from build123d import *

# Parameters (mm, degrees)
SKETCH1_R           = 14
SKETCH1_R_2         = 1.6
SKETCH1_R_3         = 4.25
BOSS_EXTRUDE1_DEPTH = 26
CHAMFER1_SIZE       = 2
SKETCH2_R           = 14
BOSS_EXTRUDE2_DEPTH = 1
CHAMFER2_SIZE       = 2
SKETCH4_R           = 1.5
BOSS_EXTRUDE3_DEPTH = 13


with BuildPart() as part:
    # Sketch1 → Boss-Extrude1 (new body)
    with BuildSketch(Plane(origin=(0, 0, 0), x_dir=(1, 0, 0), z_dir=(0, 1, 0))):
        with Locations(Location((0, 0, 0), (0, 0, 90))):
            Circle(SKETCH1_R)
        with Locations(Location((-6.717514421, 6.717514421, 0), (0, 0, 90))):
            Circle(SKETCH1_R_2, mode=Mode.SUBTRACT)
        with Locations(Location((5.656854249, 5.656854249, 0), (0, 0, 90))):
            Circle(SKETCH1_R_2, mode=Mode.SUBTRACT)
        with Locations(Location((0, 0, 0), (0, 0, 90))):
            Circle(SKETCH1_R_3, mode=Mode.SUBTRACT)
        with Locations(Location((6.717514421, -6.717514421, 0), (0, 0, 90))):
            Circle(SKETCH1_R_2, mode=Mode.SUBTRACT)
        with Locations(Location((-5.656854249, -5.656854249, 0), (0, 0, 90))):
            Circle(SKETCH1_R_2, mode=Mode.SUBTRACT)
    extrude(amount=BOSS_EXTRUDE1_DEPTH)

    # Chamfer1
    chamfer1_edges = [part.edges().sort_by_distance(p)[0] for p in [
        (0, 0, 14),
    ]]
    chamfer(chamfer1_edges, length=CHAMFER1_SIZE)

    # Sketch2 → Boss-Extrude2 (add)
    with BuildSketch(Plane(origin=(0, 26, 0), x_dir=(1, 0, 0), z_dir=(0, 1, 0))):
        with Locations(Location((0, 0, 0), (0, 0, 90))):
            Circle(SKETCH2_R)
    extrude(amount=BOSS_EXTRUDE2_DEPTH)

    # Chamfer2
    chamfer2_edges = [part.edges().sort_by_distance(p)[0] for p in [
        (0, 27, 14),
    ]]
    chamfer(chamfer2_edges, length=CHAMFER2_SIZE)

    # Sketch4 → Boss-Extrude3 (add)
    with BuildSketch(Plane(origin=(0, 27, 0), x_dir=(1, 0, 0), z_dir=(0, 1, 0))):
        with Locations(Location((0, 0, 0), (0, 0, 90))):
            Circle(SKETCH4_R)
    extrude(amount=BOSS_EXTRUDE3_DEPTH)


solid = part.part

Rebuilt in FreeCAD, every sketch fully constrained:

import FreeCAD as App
import Part
import Sketcher
Q = App.Units.Quantity


def edges_at(feature, points):
    """Names of the edges that pass closest to the given points."""
    edges = feature.Shape.Edges
    near = lambda p: min(range(len(edges)), key=lambda i: edges[i].distToShape(Part.Vertex(*p))[0])
    return sorted({f"Edge{near(p) + 1}" for p in points})

doc = App.newDocument("Part")
params = doc.addObject("Spreadsheet::Sheet", "Params")
for row, (alias, value) in enumerate([
    ("sketch1_diameter", "28 mm"),
    ("sketch1_diameter2", "3.2 mm"),
    ("sketch1_diameter3", "8.5 mm"),
    ("pad1_length", "26 mm"),
    ("chamfer_size", "2 mm"),
    ("sketch2_diameter", "28 mm"),
    ("pad2_length", "1 mm"),
    ("chamfer2_size", "2 mm"),
    ("sketch3_diameter", "3 mm"),
    ("pad3_length", "13 mm"),
], start=1):
    params.set(f"A{row}", alias)
    params.set(f"B{row}", "=" + value)
    params.setAlias(f"B{row}", alias)

body = doc.addObject("PartDesign::Body", "Body")

# Sketch on XZ plane
sketch1 = body.newObject("Sketcher::SketchObject", "Sketch")
sketch1.AttachmentSupport = (doc.getObject("XZ_Plane"), [""])
sketch1.MapMode = "FlatFace"
sketch1.addGeometry([
    Part.Circle(App.Vector(0, 0, 0), App.Vector(0, 0, 1), 14),  # 0
    Part.Circle(App.Vector(6.7, 6.7, 0), App.Vector(0, 0, 1), 1.6),  # 1
    Part.Circle(App.Vector(5.7, -5.7, 0), App.Vector(0, 0, 1), 1.6),  # 2
    Part.Circle(App.Vector(-5.7, 5.7, 0), App.Vector(0, 0, 1), 1.6),  # 3
    Part.Circle(App.Vector(0, 0, 0), App.Vector(0, 0, 1), 4.2),  # 4
    Part.Circle(App.Vector(-6.7, -6.7, 0), App.Vector(0, 0, 1), 1.6),  # 5
], False)
sketch1.addConstraint([
    Sketcher.Constraint("Coincident", 0, 3, -1, 1),
    Sketcher.Constraint("Coincident", 4, 3, -1, 1),
    Sketcher.Constraint("Equal", 1, 2),
    Sketcher.Constraint("Equal", 2, 3),
    Sketcher.Constraint("Equal", 3, 5),
    Sketcher.Constraint("Symmetric", 2, 3, 3, 3, -1, 1),
    Sketcher.Constraint("Symmetric", 1, 3, 5, 3, -1, 1),
    Sketcher.Constraint("Diameter", 0, Q("28 mm")),
    Sketcher.Constraint("Diameter", 1, Q("3.2 mm")),
    Sketcher.Constraint("Diameter", 4, Q("8.5 mm")),
    Sketcher.Constraint("DistanceX", 2, 3, 1, 3, Q("1.06066 mm")),
    Sketcher.Constraint("DistanceY", 2, 3, 1, 3, Q("12.374369 mm")),
    Sketcher.Constraint("DistanceX", 3, 3, 1, 3, Q("12.374369 mm")),
    Sketcher.Constraint("DistanceY", 3, 3, 1, 3, Q("1.06066 mm")),
])
sketch1.setExpression("Constraints[7]", "Params.sketch1_diameter")
sketch1.setExpression("Constraints[8]", "Params.sketch1_diameter2")
sketch1.setExpression("Constraints[9]", "Params.sketch1_diameter3")
pad1 = body.newObject("PartDesign::Pad", "Pad")
pad1.Profile = sketch1
pad1.setExpression("Length", "Params.pad1_length")
pad1.Reversed = True
doc.recompute()

chamfer = body.newObject("PartDesign::Chamfer", "Chamfer")
chamfer.Base = (pad1, edges_at(pad1, [(0, 0, 14)]))
chamfer.setExpression("Size", "Params.chamfer_size")

# Sketch on XZ plane
sketch2 = body.newObject("Sketcher::SketchObject", "Sketch001")
sketch2.AttachmentSupport = (doc.getObject("XZ_Plane"), [""])
sketch2.MapMode = "FlatFace"
sketch2.AttachmentOffset = App.Placement(App.Vector(0, 0, -26), App.Rotation())
sketch2.addGeometry(Part.Circle(App.Vector(0, 0, 0), App.Vector(0, 0, 1), 14), False)
sketch2.addConstraint([
    Sketcher.Constraint("Coincident", 0, 3, -1, 1),
    Sketcher.Constraint("Diameter", 0, Q("28 mm")),
])
sketch2.setExpression("Constraints[1]", "Params.sketch2_diameter")
pad2 = body.newObject("PartDesign::Pad", "Pad001")
pad2.Profile = sketch2
pad2.setExpression("Length", "Params.pad2_length")
pad2.Reversed = True
doc.recompute()

chamfer2 = body.newObject("PartDesign::Chamfer", "Chamfer001")
chamfer2.Base = (pad2, edges_at(pad2, [(0, 27, 14)]))
chamfer2.setExpression("Size", "Params.chamfer2_size")

# Sketch on XZ plane
sketch3 = body.newObject("Sketcher::SketchObject", "Sketch002")
sketch3.AttachmentSupport = (doc.getObject("XZ_Plane"), [""])
sketch3.MapMode = "FlatFace"
sketch3.AttachmentOffset = App.Placement(App.Vector(0, 0, -27), App.Rotation())
sketch3.addGeometry(Part.Circle(App.Vector(0, 0, 0), App.Vector(0, 0, 1), 1.5), False)
sketch3.addConstraint([
    Sketcher.Constraint("Coincident", 0, 3, -1, 1),
    Sketcher.Constraint("Diameter", 0, Q("3 mm")),
])
sketch3.setExpression("Constraints[1]", "Params.sketch3_diameter")
pad3 = body.newObject("PartDesign::Pad", "Pad002")
pad3.Profile = sketch3
pad3.setExpression("Length", "Params.pad3_length")
pad3.Reversed = True

doc.recompute()
